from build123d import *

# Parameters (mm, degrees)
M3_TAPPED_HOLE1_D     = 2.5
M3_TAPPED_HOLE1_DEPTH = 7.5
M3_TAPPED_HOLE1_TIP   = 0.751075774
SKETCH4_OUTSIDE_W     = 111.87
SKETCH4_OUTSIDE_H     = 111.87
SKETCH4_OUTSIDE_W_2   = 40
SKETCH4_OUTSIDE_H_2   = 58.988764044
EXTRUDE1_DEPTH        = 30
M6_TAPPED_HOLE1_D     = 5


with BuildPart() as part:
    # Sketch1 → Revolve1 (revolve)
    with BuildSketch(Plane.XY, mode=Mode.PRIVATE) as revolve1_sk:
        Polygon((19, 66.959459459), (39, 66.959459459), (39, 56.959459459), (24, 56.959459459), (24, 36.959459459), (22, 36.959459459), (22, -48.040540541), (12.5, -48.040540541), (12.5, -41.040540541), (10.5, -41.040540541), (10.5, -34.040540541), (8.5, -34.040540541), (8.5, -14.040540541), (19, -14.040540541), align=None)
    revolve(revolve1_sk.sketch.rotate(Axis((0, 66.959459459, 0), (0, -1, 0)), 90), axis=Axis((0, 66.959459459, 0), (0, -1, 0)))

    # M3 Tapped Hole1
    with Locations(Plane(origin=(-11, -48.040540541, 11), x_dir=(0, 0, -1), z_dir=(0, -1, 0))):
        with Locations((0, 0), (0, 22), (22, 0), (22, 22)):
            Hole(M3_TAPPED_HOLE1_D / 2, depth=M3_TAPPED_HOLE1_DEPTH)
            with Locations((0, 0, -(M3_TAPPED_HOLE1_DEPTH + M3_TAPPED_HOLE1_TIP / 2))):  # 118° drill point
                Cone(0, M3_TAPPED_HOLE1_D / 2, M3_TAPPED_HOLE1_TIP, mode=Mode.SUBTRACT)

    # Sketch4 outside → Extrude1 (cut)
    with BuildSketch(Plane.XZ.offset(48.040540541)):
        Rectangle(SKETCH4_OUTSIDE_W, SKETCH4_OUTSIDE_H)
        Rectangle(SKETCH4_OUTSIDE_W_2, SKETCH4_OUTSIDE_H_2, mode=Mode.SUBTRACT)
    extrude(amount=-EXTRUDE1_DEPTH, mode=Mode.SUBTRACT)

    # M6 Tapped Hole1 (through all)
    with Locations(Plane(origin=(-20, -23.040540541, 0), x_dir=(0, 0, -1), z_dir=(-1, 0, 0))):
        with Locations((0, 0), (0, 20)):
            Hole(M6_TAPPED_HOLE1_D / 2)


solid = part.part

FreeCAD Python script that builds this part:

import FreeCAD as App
import Part
import Sketcher
from FreeCAD import Vector
Q = App.Units.Quantity

doc = App.newDocument("Part")
body = doc.addObject("PartDesign::Body", "Body")

sketch1 = body.newObject("Sketcher::SketchObject", "Sketch")
sketch1.AttachmentSupport = (doc.getObject("XY_Plane"), [""])
sketch1.MapMode = "FlatFace"
sketch1.addGeometry(Part.LineSegment(Vector(39, 67, 0), Vector(19, 67, 0)), False)
sketch1.addGeometry(Part.LineSegment(Vector(19, 67, 0), Vector(19, -14, 0)), False)
sketch1.addGeometry(Part.LineSegment(Vector(19, -14, 0), Vector(8.5, -14, 0)), False)
sketch1.addGeometry(Part.LineSegment(Vector(8.5, -14, 0), Vector(8.5, -34, 0)), False)
sketch1.addGeometry(Part.LineSegment(Vector(8.5, -34, 0), Vector(10.5, -34, 0)), False)
sketch1.addGeometry(Part.LineSegment(Vector(10.5, -34, 0), Vector(10.5, -41, 0)), False)
sketch1.addGeometry(Part.LineSegment(Vector(10.5, -41, 0), Vector(12.5, -41, 0)), False)
sketch1.addGeometry(Part.LineSegment(Vector(12.5, -41, 0), Vector(12.5, -48, 0)), False)
sketch1.addGeometry(Part.LineSegment(Vector(12.5, -48, 0), Vector(22, -48, 0)), False)
sketch1.addGeometry(Part.LineSegment(Vector(22, -48, 0), Vector(22, 37, 0)), False)
sketch1.addGeometry(Part.LineSegment(Vector(22, 37, 0), Vector(24, 37, 0)), False)
sketch1.addGeometry(Part.LineSegment(Vector(24, 37, 0), Vector(24, 57, 0)), False)
sketch1.addGeometry(Part.LineSegment(Vector(24, 57, 0), Vector(39, 57, 0)), False)
sketch1.addGeometry(Part.LineSegment(Vector(39, 57, 0), Vector(39, 67, 0)), False)
sketch1.addConstraint(Sketcher.Constraint("Coincident", 0, 2, 1, 1))
sketch1.addConstraint(Sketcher.Constraint("Coincident", 1, 2, 2, 1))
sketch1.addConstraint(Sketcher.Constraint("Coincident", 2, 2, 3, 1))
sketch1.addConstraint(Sketcher.Constraint("Coincident", 3, 2, 4, 1))
sketch1.addConstraint(Sketcher.Constraint("Coincident", 4, 2, 5, 1))
sketch1.addConstraint(Sketcher.Constraint("Coincident", 5, 2, 6, 1))
sketch1.addConstraint(Sketcher.Constraint("Coincident", 6, 2, 7, 1))
sketch1.addConstraint(Sketcher.Constraint("Coincident", 7, 2, 8, 1))
sketch1.addConstraint(Sketcher.Constraint("Coincident", 8, 2, 9, 1))
sketch1.addConstraint(Sketcher.Constraint("Coincident", 9, 2, 10, 1))
sketch1.addConstraint(Sketcher.Constraint("Coincident", 10, 2, 11, 1))
sketch1.addConstraint(Sketcher.Constraint("Coincident", 11, 2, 12, 1))
sketch1.addConstraint(Sketcher.Constraint("Coincident", 12, 2, 13, 1))
sketch1.addConstraint(Sketcher.Constraint("Coincident", 13, 2, 0, 1))
sketch1.addConstraint(Sketcher.Constraint("Horizontal", 0))
sketch1.addConstraint(Sketcher.Constraint("Vertical", 1))
sketch1.addConstraint(Sketcher.Constraint("Horizontal", 2))
sketch1.addConstraint(Sketcher.Constraint("Vertical", 3))
sketch1.addConstraint(Sketcher.Constraint("Horizontal", 4))
sketch1.addConstraint(Sketcher.Constraint("Vertical", 5))
sketch1.addConstraint(Sketcher.Constraint("Horizontal", 6))
sketch1.addConstraint(Sketcher.Constraint("Vertical", 7))
sketch1.addConstraint(Sketcher.Constraint("Horizontal", 8))
sketch1.addConstraint(Sketcher.Constraint("Vertical", 9))
sketch1.addConstraint(Sketcher.Constraint("Horizontal", 10))
sketch1.addConstraint(Sketcher.Constraint("Vertical", 11))
sketch1.addConstraint(Sketcher.Constraint("Horizontal", 12))
sketch1.addConstraint(Sketcher.Constraint("Vertical", 13))
sketch1.addConstraint(Sketcher.Constraint("Equal", 4, 6))
sketch1.addConstraint(Sketcher.Constraint("Equal", 6, 10))
sketch1.addConstraint(Sketcher.Constraint("Equal", 0, 3))
sketch1.addConstraint(Sketcher.Constraint("Equal", 5, 7))
sketch1.addConstraint(Sketcher.Constraint("Equal", 3, 11))
sketch1.addConstraint(Sketcher.Constraint("DistanceX", 0, 2, 0, 1, Q("20 mm")))
sketch1.addConstraint(Sketcher.Constraint("DistanceX", 4, 1, 4, 2, Q("2 mm")))
sketch1.addConstraint(Sketcher.Constraint("DistanceX", 12, 1, 12, 2, Q("15 mm")))
sketch1.addConstraint(Sketcher.Constraint("DistanceY", 1, 2, 1, 1, Q("81 mm")))
sketch1.addConstraint(Sketcher.Constraint("DistanceY", 5, 2, 5, 1, Q("7 mm")))
sketch1.addConstraint(Sketcher.Constraint("DistanceY", 9, 1, 9, 2, Q("85 mm")))
sketch1.addConstraint(Sketcher.Constraint("DistanceX", 2, 2, 2, 1, Q("10.5 mm")))
sketch1.addConstraint(Sketcher.Constraint("DistanceX", -1, 1, 0, 2, Q("19 mm")))
sketch1.addConstraint(Sketcher.Constraint("DistanceY", -1, 1, 0, 2, Q("66.959459 mm")))
revolution = body.newObject("PartDesign::Revolution", "Revolution")
revolution.Profile = sketch1
revolution.ReferenceAxis = (sketch1, ["V_Axis"])
revolution.Angle = 360

sketch2 = body.newObject("Sketcher::SketchObject", "Sketch001")
sketch2.AttachmentSupport = (doc.getObject("XZ_Plane"), [""])
sketch2.MapMode = "FlatFace"
sketch2.AttachmentOffset = App.Placement(Vector(0, 0, 48.040541), App.Rotation())
sketch2.addGeometry(Part.Circle(Vector(-11, 11, 0), Vector(0, 0, 1), 1.2), False)
sketch2.addGeometry(Part.Circle(Vector(11, 11, 0), Vector(0, 0, 1), 1.2), False)
sketch2.addGeometry(Part.Circle(Vector(-11, -11, 0), Vector(0, 0, 1), 1.2), False)
sketch2.addGeometry(Part.Circle(Vector(11, -11, 0), Vector(0, 0, 1), 1.2), False)
sketch2.addConstraint(Sketcher.Constraint("Equal", 0, 1))
sketch2.addConstraint(Sketcher.Constraint("Equal", 1, 2))
sketch2.addConstraint(Sketcher.Constraint("Equal", 2, 3))
sketch2.addConstraint(Sketcher.Constraint("Symmetric", 1, 3, 2, 3, -1, 1))
sketch2.addConstraint(Sketcher.Constraint("Symmetric", 0, 3, 3, 3, -1, 1))
sketch2.addConstraint(Sketcher.Constraint("Symmetric", 0, 3, 1, 3, -2))
sketch2.addConstraint(Sketcher.Constraint("Diameter", 0, Q("2.5 mm")))
sketch2.addConstraint(Sketcher.Constraint("DistanceX", 0, 3, -1, 1, Q("11 mm")))
sketch2.addConstraint(Sketcher.Constraint("DistanceY", -1, 1, 0, 3, Q("11 mm")))
doc.recompute()
hole = body.newObject("PartDesign::Hole", "Hole")
hole.Profile = sketch2
hole.ThreadType = "None"
hole.Diameter = 2.5
hole.DepthType = "Dimension"
hole.Depth = 7.5
hole.DrillPoint = "Angled"
hole.DrillPointAngle = 118

sketch3 = body.newObject("Sketcher::SketchObject", "Sketch002")
sketch3.AttachmentSupport = (doc.getObject("XZ_Plane"), [""])
sketch3.MapMode = "FlatFace"
sketch3.AttachmentOffset = App.Placement(Vector(0, 0, 48.040541), App.Rotation())
sketch3.addGeometry(Part.LineSegment(Vector(-56, 56, 0), Vector(-56, -56, 0)), False)
sketch3.addGeometry(Part.LineSegment(Vector(-56, -56, 0), Vector(56, -56, 0)), False)
sketch3.addGeometry(Part.LineSegment(Vector(56, -56, 0), Vector(56, 56, 0)), False)
sketch3.addGeometry(Part.LineSegment(Vector(56, 56, 0), Vector(-56, 56, 0)), False)
sketch3.addGeometry(Part.LineSegment(Vector(20, -29, 0), Vector(-20, -29, 0)), False)
sketch3.addGeometry(Part.LineSegment(Vector(-20, -29, 0), Vector(-20, 29, 0)), False)
sketch3.addGeometry(Part.LineSegment(Vector(-20, 29, 0), Vector(20, 29, 0)), False)
sketch3.addGeometry(Part.LineSegment(Vector(20, 29, 0), Vector(20, -29, 0)), False)
sketch3.addConstraint(Sketcher.Constraint("Coincident", 0, 2, 1, 1))
sketch3.addConstraint(Sketcher.Constraint("Coincident", 1, 2, 2, 1))
sketch3.addConstraint(Sketcher.Constraint("Coincident", 2, 2, 3, 1))
sketch3.addConstraint(Sketcher.Constraint("Coincident", 3, 2, 0, 1))
sketch3.addConstraint(Sketcher.Constraint("Coincident", 4, 2, 5, 1))
sketch3.addConstraint(Sketcher.Constraint("Coincident", 5, 2, 6, 1))
sketch3.addConstraint(Sketcher.Constraint("Coincident", 6, 2, 7, 1))
sketch3.addConstraint(Sketcher.Constraint("Coincident", 7, 2, 4, 1))
sketch3.addConstraint(Sketcher.Constraint("Vertical", 0))
sketch3.addConstraint(Sketcher.Constraint("Horizontal", 1))
sketch3.addConstraint(Sketcher.Constraint("Vertical", 2))
sketch3.addConstraint(Sketcher.Constraint("Horizontal", 3))
sketch3.addConstraint(Sketcher.Constraint("Horizontal", 4))
sketch3.addConstraint(Sketcher.Constraint("Vertical", 5))
sketch3.addConstraint(Sketcher.Constraint("Horizontal", 6))
sketch3.addConstraint(Sketcher.Constraint("Vertical", 7))
sketch3.addConstraint(Sketcher.Constraint("Symmetric", 0, 2, 2, 2, -1, 1))
sketch3.addConstraint(Sketcher.Constraint("Symmetric", 4, 2, 6, 2, -1, 1))
sketch3.addConstraint(Sketcher.Constraint("Equal", 3, 0))
sketch3.addConstraint(Sketcher.Constraint("DistanceX", 4, 2, 4, 1, Q("40 mm")))
sketch3.addConstraint(Sketcher.Constraint("DistanceX", 1, 1, 1, 2, Q("111.87 mm")))
sketch3.addConstraint(Sketcher.Constraint("DistanceY", 5, 1, 5, 2, Q("58.988764 mm")))
pocket1 = body.newObject("PartDesign::Pocket", "Pocket")
pocket1.Profile = sketch3
pocket1.Length = 30

sketch4 = body.newObject("Sketcher::SketchObject", "Sketch003")
sketch4.AttachmentSupport = (doc.getObject("YZ_Plane"), [""])
sketch4.MapMode = "FlatFace"
sketch4.AttachmentOffset = App.Placement(Vector(0, 0, -20), App.Rotation())
sketch4.addGeometry(Part.Circle(Vector(-23, 0, 0), Vector(0, 0, 1), 2.5), False)
sketch4.addGeometry(Part.Circle(Vector(-43, 0, 0), Vector(0, 0, 1), 2.5), False)
sketch4.addConstraint(Sketcher.Constraint("Equal", 0, 1))
sketch4.addConstraint(Sketcher.Constraint("PointOnObject", 0, 3, -1))
sketch4.addConstraint(Sketcher.Constraint("PointOnObject", 1, 3, -1))
sketch4.addConstraint(Sketcher.Constraint("Diameter", 0, Q("5 mm")))
sketch4.addConstraint(Sketcher.Constraint("DistanceX", 1, 3, 0, 3, Q("20 mm")))
sketch4.addConstraint(Sketcher.Constraint("DistanceX", 0, 3, -1, 1, Q("23.040541 mm")))
doc.recompute()
hole2 = body.newObject("PartDesign::Hole", "Hole001")
hole2.Profile = sketch4
hole2.ThreadType = "None"
hole2.Diameter = 5
hole2.DepthType = "ThroughAll"
hole2.Reversed = True

doc.recompute()
